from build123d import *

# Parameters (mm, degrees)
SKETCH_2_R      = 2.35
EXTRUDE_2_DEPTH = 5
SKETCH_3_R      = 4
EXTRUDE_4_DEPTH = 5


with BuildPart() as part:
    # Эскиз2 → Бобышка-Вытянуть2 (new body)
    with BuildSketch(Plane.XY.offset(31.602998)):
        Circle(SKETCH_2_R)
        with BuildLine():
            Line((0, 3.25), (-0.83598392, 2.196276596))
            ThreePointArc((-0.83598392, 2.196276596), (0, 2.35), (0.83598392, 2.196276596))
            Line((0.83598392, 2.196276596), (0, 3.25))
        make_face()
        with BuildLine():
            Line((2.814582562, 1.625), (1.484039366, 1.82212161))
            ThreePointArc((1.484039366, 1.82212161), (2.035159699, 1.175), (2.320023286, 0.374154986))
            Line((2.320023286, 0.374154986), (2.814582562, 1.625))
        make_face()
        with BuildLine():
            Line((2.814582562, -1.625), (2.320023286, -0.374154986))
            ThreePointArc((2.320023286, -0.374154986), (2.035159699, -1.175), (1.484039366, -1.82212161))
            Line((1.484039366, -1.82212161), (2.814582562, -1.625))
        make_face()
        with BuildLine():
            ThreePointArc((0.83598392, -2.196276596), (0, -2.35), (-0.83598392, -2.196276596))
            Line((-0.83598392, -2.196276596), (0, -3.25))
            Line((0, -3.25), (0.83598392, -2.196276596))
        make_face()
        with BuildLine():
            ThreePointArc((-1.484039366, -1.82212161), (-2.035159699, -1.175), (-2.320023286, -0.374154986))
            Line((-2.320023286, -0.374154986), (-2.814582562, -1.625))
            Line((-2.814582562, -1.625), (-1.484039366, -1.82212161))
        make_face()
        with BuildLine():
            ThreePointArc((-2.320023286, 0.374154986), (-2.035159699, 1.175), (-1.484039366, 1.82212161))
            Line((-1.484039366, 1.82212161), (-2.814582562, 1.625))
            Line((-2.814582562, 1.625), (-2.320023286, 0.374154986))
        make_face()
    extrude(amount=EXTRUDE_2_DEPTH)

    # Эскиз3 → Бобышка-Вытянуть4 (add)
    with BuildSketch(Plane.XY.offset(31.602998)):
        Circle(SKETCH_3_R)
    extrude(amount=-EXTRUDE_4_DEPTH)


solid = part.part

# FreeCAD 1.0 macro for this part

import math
import FreeCAD as App
import Part
import Sketcher
Q = App.Units.Quantity

doc = App.newDocument("Part")
body = doc.addObject("PartDesign::Body", "Body")

sketch1 = body.newObject("Sketcher::SketchObject", "Sketch")
sketch1.AttachmentSupport = (doc.getObject("XY_Plane"), [""])
sketch1.MapMode = "FlatFace"
sketch1.AttachmentOffset = App.Placement(App.Vector(0, 0, 31.602998), App.Rotation())
sketch1.addGeometry([
    Part.LineSegment(App.Vector(0.8, 2.2, 0), App.Vector(0, 3.2, 0)),
    Part.LineSegment(App.Vector(0, 3.2, 0), App.Vector(-0.8, 2.2, 0)),
    Part.ArcOfCircle(Part.Circle(App.Vector(0, 0, 0), App.Vector(0, 0, 1), 2.4), math.radians(110.84), math.radians(129.16)),
    Part.LineSegment(App.Vector(-1.5, 1.8, 0), App.Vector(-2.8, 1.6, 0)),
    Part.LineSegment(App.Vector(-2.8, 1.6, 0), App.Vector(-2.3, 0.4, 0)),
    Part.ArcOfCircle(Part.Circle(App.Vector(0, 0, 0), App.Vector(0, 0, 1), 2.4), math.radians(170.84), math.radians(189.16)),
    Part.LineSegment(App.Vector(-2.3, -0.4, 0), App.Vector(-2.8, -1.6, 0)),
    Part.LineSegment(App.Vector(-2.8, -1.6, 0), App.Vector(-1.5, -1.8, 0)),
    Part.ArcOfCircle(Part.Circle(App.Vector(0, 0, 0), App.Vector(0, 0, 1), 2.4), math.radians(-129.16), math.radians(-110.84)),
    Part.LineSegment(App.Vector(-0.8, -2.2, 0), App.Vector(0, -3.2, 0)),
    Part.LineSegment(App.Vector(0, -3.2, 0), App.Vector(0.8, -2.2, 0)),
    Part.ArcOfCircle(Part.Circle(App.Vector(0, 0, 0), App.Vector(0, 0, 1), 2.4), math.radians(-69.16), math.radians(-50.84)),
    Part.LineSegment(App.Vector(1.5, -1.8, 0), App.Vector(2.8, -1.6, 0)),
    Part.LineSegment(App.Vector(2.8, -1.6, 0), App.Vector(2.3, -0.4, 0)),
    Part.ArcOfCircle(Part.Circle(App.Vector(0, 0, 0), App.Vector(0, 0, 1), 2.4), math.radians(-9.16), math.radians(9.16)),
    Part.LineSegment(App.Vector(2.3, 0.4, 0), App.Vector(2.8, 1.6, 0)),
    Part.LineSegment(App.Vector(2.8, 1.6, 0), App.Vector(1.5, 1.8, 0)),
    Part.ArcOfCircle(Part.Circle(App.Vector(0, 0, 0), App.Vector(0, 0, 1), 2.4), math.radians(50.84), math.radians(69.16)),
], False)
sketch1.addConstraint([
    Sketcher.Constraint("Coincident", 0, 2, 1, 1),
    Sketcher.Constraint("Coincident", 1, 2, 2, 1),
    Sketcher.Constraint("Coincident", 2, 2, 3, 1),
    Sketcher.Constraint("Coincident", 3, 2, 4, 1),
    Sketcher.Constraint("Coincident", 4, 2, 5, 1),
    Sketcher.Constraint("Coincident", 5, 2, 6, 1),
    Sketcher.Constraint("Coincident", 6, 2, 7, 1),
    Sketcher.Constraint("Coincident", 7, 2, 8, 1),
    Sketcher.Constraint("Coincident", 8, 2, 9, 1),
    Sketcher.Constraint("Coincident", 9, 2, 10, 1),
    Sketcher.Constraint("Coincident", 10, 2, 11, 1),
    Sketcher.Constraint("Coincident", 11, 2, 12, 1),
    Sketcher.Constraint("Coincident", 12, 2, 13, 1),
    Sketcher.Constraint("Coincident", 13, 2, 14, 1),
    Sketcher.Constraint("Coincident", 14, 2, 15, 1),
    Sketcher.Constraint("Coincident", 15, 2, 16, 1),
    Sketcher.Constraint("Coincident", 16, 2, 17, 1),
    Sketcher.Constraint("Coincident", 17, 2, 0, 1),
    Sketcher.Constraint("Coincident", 2, 3, -1, 1),
    Sketcher.Constraint("Coincident", 5, 3, -1, 1),
    Sketcher.Constraint("Coincident", 8, 3, -1, 1),
    Sketcher.Constraint("Coincident", 11, 3, -1, 1),
    Sketcher.Constraint("Coincident", 14, 3, -1, 1),
    Sketcher.Constraint("Coincident", 17, 3, -1, 1),
    Sketcher.Constraint("Equal", 2, 5),
    Sketcher.Constraint("Equal", 5, 8),
    Sketcher.Constraint("Equal", 8, 11),
    Sketcher.Constraint("Equal", 11, 14),
    Sketcher.Constraint("Equal", 14, 17),
    Sketcher.Constraint("Symmetric", 0, 2, 9, 2, -1, 1),
    Sketcher.Constraint("Symmetric", 3, 2, 12, 2, -1, 1),
    Sketcher.Constraint("Symmetric", 6, 2, 15, 2, -1, 1),
    Sketcher.Constraint("Symmetric", 6, 2, 12, 2, -2),
    Sketcher.Constraint("PointOnObject", 0, 2, -2),
    Sketcher.Constraint("Parallel", 0, 9),
    Sketcher.Constraint("Parallel", 1, 10),
    Sketcher.Constraint("Parallel", 3, 12),
    Sketcher.Constraint("Parallel", 4, 13),
    Sketcher.Constraint("Parallel", 6, 15),
    Sketcher.Constraint("Parallel", 7, 16),
    Sketcher.Constraint("Horizontal", 8, 2, 10, 2),
    Sketcher.Constraint("Horizontal", 7, 2, 11, 2),
    Sketcher.Constraint("Horizontal", 5, 2, 13, 2),
    Sketcher.Constraint("Equal", 1, 3),
    Sketcher.Constraint("Equal", 3, 4),
    Sketcher.Constraint("Radius", 2, Q("2.35 mm")),
    Sketcher.Constraint("DistanceY", -1, 1, 0, 2, Q("3.25 mm")),
    Sketcher.Constraint("DistanceY", -1, 1, 3, 2, Q("1.625 mm")),
    Sketcher.Constraint("DistanceX", 3, 2, 1, 2, Q("1.978599 mm")),
    Sketcher.Constraint("DistanceX", 2, 2, -1, 1, Q("1.484039 mm")),
])
pad1 = body.newObject("PartDesign::Pad", "Pad")
pad1.Profile = sketch1
pad1.Length = 5

sketch2 = body.newObject("Sketcher::SketchObject", "Sketch001")
sketch2.AttachmentSupport = (doc.getObject("XY_Plane"), [""])
sketch2.MapMode = "FlatFace"
sketch2.AttachmentOffset = App.Placement(App.Vector(0, 0, 31.602998), App.Rotation())
sketch2.addGeometry(Part.Circle(App.Vector(0, 0, 0), App.Vector(0, 0, 1), 4), False)
sketch2.addConstraint([
    Sketcher.Constraint("Coincident", 0, 3, -1, 1),
    Sketcher.Constraint("Diameter", 0, Q("8 mm")),
])
pad2 = body.newObject("PartDesign::Pad", "Pad001")
pad2.Profile = sketch2
pad2.Length = 5
pad2.Reversed = True

doc.recompute()
